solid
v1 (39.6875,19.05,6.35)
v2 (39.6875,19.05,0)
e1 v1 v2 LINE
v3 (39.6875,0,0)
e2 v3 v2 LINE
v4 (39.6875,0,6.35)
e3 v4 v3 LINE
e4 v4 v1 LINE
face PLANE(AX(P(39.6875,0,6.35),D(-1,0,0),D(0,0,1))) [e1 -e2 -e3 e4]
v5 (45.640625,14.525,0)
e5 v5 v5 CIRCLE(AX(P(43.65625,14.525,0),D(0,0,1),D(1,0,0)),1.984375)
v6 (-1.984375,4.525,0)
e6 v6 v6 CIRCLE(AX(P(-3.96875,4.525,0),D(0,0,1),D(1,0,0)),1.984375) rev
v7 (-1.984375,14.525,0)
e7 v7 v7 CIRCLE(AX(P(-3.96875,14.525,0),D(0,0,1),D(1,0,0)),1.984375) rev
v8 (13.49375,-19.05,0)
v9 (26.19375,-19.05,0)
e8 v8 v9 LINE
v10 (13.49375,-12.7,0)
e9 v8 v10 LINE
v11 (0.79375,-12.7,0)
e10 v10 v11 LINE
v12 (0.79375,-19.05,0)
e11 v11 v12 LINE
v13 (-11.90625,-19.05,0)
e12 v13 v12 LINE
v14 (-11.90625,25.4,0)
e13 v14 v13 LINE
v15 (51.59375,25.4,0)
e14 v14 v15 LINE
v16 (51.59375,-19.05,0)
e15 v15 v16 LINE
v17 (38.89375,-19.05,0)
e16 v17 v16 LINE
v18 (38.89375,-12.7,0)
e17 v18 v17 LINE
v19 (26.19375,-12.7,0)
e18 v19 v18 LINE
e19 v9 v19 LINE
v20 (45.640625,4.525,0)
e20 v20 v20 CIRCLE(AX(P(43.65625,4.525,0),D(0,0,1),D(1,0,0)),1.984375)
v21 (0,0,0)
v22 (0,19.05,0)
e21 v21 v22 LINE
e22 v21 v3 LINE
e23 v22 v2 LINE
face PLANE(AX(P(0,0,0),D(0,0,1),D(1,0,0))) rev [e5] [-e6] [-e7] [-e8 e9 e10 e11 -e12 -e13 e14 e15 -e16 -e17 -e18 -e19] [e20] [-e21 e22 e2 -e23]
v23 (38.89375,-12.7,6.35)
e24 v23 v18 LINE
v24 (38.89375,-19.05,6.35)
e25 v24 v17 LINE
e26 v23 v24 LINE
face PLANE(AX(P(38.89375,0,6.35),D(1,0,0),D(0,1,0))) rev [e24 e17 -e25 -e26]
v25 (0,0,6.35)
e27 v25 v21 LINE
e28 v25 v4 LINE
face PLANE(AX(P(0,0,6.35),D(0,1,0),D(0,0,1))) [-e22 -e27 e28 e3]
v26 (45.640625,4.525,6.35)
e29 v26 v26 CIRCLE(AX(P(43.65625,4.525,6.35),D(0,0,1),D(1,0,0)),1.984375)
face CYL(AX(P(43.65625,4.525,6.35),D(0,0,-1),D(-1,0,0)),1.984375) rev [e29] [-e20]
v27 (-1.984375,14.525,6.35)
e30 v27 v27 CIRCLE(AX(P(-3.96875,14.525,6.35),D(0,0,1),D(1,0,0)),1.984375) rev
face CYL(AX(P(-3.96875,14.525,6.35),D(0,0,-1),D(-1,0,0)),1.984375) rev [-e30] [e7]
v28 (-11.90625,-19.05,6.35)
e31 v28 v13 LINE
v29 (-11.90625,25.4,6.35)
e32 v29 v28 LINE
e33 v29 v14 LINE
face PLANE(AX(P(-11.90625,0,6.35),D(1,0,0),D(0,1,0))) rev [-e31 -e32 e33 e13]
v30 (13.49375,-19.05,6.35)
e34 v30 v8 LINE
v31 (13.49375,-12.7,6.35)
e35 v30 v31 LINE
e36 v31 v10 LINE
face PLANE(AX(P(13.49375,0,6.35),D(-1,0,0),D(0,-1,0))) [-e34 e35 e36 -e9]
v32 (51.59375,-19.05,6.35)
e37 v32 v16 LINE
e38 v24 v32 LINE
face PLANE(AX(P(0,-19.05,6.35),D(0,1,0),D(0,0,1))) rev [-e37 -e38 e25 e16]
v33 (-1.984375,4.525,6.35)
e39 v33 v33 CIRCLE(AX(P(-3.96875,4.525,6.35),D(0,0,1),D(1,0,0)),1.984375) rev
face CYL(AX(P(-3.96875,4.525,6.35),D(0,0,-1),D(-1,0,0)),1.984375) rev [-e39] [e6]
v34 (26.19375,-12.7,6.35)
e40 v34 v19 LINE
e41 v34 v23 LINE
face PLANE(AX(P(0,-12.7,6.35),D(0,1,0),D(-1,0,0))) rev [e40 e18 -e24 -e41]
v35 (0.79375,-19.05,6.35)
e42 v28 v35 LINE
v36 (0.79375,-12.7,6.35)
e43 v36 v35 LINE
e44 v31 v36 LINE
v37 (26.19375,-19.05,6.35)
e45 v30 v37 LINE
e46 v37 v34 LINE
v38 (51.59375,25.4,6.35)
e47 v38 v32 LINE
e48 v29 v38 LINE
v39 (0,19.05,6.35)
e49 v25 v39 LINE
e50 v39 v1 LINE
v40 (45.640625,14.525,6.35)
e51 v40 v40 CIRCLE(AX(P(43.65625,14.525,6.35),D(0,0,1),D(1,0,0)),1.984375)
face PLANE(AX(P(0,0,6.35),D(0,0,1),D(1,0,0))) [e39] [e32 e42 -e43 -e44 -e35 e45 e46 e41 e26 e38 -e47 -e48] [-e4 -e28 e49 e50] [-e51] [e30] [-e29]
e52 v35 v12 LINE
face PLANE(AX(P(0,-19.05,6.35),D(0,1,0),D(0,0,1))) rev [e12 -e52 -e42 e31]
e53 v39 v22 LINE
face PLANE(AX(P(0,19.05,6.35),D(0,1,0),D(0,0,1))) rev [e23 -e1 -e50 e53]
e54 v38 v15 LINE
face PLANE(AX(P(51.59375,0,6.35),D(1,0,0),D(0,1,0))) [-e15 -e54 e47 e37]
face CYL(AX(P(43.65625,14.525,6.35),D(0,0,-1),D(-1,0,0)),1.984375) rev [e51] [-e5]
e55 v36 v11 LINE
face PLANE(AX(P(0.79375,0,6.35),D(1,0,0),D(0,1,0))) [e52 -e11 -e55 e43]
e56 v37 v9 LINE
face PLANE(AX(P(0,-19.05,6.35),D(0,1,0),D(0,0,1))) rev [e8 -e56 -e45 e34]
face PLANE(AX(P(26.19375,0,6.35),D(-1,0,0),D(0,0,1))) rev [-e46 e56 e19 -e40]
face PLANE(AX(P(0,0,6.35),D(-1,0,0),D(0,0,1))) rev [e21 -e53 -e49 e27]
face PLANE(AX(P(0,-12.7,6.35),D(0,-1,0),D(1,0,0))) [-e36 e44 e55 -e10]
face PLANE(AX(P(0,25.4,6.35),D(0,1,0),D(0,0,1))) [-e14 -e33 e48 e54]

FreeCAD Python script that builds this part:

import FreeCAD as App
import Part
import Sketcher

V = App.Vector
Q = App.Units.Quantity


def add_polygon(sketch, points):
    """Adds a closed chain of lines whose ends are joined by coincident constraints."""
    first, n = sketch.GeometryCount, len(points)
    for a, b in zip(points, points[1:] + points[:1]):
        sketch.addGeometry(Part.LineSegment(App.Vector(*a, 0), App.Vector(*b, 0)), False)
    for i in range(n):
        sketch.addConstraint(Sketcher.Constraint("Coincident", first + i, 2, first + (i + 1) % n, 1))

doc = App.newDocument("Part")
body = doc.addObject("PartDesign::Body", "Body")

sketch1 = body.newObject("Sketcher::SketchObject", "Sketch")
sketch1.AttachmentSupport = (doc.getObject("XY_Plane"), [""])
sketch1.MapMode = "FlatFace"
add_polygon(sketch1, [(51.6, 25.4), (-11.9, 25.4), (-11.9, -19.1), (0.8, -19.1), (0.8, -12.7), (13.5, -12.7), (13.5, -19.1), (26.2, -19.1), (26.2, -12.7), (38.9, -12.7), (38.9, -19.1), (51.6, -19.1)])
sketch1.addGeometry(Part.Circle(V(-4, 4.5, 0), V(0, 0, 1), 2), False)
sketch1.addGeometry(Part.Circle(V(43.7, 4.5, 0), V(0, 0, 1), 2), False)
sketch1.addGeometry(Part.Circle(V(-4, 14.5, 0), V(0, 0, 1), 2), False)
add_polygon(sketch1, [(39.7, 0), (0, 0), (0, 19.1), (39.7, 19.1)])
sketch1.addGeometry(Part.Circle(V(43.7, 14.5, 0), V(0, 0, 1), 2), False)
sketch1.addConstraint(Sketcher.Constraint("Horizontal", 0))
sketch1.addConstraint(Sketcher.Constraint("Vertical", 1))
sketch1.addConstraint(Sketcher.Constraint("Horizontal", 2))
sketch1.addConstraint(Sketcher.Constraint("Vertical", 3))
sketch1.addConstraint(Sketcher.Constraint("Horizontal", 4))
sketch1.addConstraint(Sketcher.Constraint("Vertical", 5))
sketch1.addConstraint(Sketcher.Constraint("Horizontal", 6))
sketch1.addConstraint(Sketcher.Constraint("Vertical", 7))
sketch1.addConstraint(Sketcher.Constraint("Horizontal", 8))
sketch1.addConstraint(Sketcher.Constraint("Vertical", 9))
sketch1.addConstraint(Sketcher.Constraint("Horizontal", 10))
sketch1.addConstraint(Sketcher.Constraint("Vertical", 11))
sketch1.addConstraint(Sketcher.Constraint("Horizontal", 15))
sketch1.addConstraint(Sketcher.Constraint("Vertical", 16))
sketch1.addConstraint(Sketcher.Constraint("Horizontal", 17))
sketch1.addConstraint(Sketcher.Constraint("Vertical", 18))
sketch1.addConstraint(Sketcher.Constraint("Coincident", 15, 2, -1, 1))
sketch1.addConstraint(Sketcher.Constraint("Equal", 12, 13))
sketch1.addConstraint(Sketcher.Constraint("Equal", 13, 14))
sketch1.addConstraint(Sketcher.Constraint("Equal", 14, 19))
sketch1.addConstraint(Sketcher.Constraint("Horizontal", 12, 3, 13, 3))
sketch1.addConstraint(Sketcher.Constraint("Horizontal", 14, 3, 19, 3))
sketch1.addConstraint(Sketcher.Constraint("Horizontal", 2, 2, 5, 2))
sketch1.addConstraint(Sketcher.Constraint("Horizontal", 4, 2, 7, 2))
sketch1.addConstraint(Sketcher.Constraint("Horizontal", 6, 2, 9, 2))
sketch1.addConstraint(Sketcher.Constraint("Vertical", 12, 3, 14, 3))
sketch1.addConstraint(Sketcher.Constraint("Vertical", 13, 3, 19, 3))
sketch1.addConstraint(Sketcher.Constraint("Equal", 2, 4))
sketch1.addConstraint(Sketcher.Constraint("Equal", 4, 6))
sketch1.addConstraint(Sketcher.Constraint("Equal", 6, 8))
sketch1.addConstraint(Sketcher.Constraint("Equal", 8, 10))
sketch1.addConstraint(Sketcher.Constraint("Diameter", 12, Q("0.15625 in")))
sketch1.addConstraint(Sketcher.Constraint("DistanceX", 0, 2, 0, 1, Q("2.5 in")))
sketch1.addConstraint(Sketcher.Constraint("DistanceY", -1, 1, 0, 2, Q("1 in")))
sketch1.addConstraint(Sketcher.Constraint("DistanceY", 1, 2, 1, 1, Q("1.75 in")))
sketch1.addConstraint(Sketcher.Constraint("DistanceY", 3, 1, 3, 2, Q("0.25 in")))
sketch1.addConstraint(Sketcher.Constraint("DistanceY", 16, 1, 16, 2, Q("0.75 in")))
sketch1.addConstraint(Sketcher.Constraint("DistanceX", 15, 2, 15, 1, Q("1.5625 in")))
sketch1.addConstraint(Sketcher.Constraint("DistanceX", 12, 3, -1, 1, Q("0.15625 in")))
sketch1.addConstraint(Sketcher.Constraint("DistanceX", -1, 1, 13, 3, Q("1.71875 in")))
sketch1.addConstraint(Sketcher.Constraint("DistanceX", 0, 2, -1, 1, Q("0.46875 in")))
sketch1.addConstraint(Sketcher.Constraint("DistanceY", -1, 1, 12, 3, 4.525))
sketch1.addConstraint(Sketcher.Constraint("DistanceY", -1, 1, 14, 3, 14.525))
pad1 = body.newObject("PartDesign::Pad", "Pad")
pad1.Profile = sketch1
pad1.Length = Q("0.25 in")

doc.recompute()
